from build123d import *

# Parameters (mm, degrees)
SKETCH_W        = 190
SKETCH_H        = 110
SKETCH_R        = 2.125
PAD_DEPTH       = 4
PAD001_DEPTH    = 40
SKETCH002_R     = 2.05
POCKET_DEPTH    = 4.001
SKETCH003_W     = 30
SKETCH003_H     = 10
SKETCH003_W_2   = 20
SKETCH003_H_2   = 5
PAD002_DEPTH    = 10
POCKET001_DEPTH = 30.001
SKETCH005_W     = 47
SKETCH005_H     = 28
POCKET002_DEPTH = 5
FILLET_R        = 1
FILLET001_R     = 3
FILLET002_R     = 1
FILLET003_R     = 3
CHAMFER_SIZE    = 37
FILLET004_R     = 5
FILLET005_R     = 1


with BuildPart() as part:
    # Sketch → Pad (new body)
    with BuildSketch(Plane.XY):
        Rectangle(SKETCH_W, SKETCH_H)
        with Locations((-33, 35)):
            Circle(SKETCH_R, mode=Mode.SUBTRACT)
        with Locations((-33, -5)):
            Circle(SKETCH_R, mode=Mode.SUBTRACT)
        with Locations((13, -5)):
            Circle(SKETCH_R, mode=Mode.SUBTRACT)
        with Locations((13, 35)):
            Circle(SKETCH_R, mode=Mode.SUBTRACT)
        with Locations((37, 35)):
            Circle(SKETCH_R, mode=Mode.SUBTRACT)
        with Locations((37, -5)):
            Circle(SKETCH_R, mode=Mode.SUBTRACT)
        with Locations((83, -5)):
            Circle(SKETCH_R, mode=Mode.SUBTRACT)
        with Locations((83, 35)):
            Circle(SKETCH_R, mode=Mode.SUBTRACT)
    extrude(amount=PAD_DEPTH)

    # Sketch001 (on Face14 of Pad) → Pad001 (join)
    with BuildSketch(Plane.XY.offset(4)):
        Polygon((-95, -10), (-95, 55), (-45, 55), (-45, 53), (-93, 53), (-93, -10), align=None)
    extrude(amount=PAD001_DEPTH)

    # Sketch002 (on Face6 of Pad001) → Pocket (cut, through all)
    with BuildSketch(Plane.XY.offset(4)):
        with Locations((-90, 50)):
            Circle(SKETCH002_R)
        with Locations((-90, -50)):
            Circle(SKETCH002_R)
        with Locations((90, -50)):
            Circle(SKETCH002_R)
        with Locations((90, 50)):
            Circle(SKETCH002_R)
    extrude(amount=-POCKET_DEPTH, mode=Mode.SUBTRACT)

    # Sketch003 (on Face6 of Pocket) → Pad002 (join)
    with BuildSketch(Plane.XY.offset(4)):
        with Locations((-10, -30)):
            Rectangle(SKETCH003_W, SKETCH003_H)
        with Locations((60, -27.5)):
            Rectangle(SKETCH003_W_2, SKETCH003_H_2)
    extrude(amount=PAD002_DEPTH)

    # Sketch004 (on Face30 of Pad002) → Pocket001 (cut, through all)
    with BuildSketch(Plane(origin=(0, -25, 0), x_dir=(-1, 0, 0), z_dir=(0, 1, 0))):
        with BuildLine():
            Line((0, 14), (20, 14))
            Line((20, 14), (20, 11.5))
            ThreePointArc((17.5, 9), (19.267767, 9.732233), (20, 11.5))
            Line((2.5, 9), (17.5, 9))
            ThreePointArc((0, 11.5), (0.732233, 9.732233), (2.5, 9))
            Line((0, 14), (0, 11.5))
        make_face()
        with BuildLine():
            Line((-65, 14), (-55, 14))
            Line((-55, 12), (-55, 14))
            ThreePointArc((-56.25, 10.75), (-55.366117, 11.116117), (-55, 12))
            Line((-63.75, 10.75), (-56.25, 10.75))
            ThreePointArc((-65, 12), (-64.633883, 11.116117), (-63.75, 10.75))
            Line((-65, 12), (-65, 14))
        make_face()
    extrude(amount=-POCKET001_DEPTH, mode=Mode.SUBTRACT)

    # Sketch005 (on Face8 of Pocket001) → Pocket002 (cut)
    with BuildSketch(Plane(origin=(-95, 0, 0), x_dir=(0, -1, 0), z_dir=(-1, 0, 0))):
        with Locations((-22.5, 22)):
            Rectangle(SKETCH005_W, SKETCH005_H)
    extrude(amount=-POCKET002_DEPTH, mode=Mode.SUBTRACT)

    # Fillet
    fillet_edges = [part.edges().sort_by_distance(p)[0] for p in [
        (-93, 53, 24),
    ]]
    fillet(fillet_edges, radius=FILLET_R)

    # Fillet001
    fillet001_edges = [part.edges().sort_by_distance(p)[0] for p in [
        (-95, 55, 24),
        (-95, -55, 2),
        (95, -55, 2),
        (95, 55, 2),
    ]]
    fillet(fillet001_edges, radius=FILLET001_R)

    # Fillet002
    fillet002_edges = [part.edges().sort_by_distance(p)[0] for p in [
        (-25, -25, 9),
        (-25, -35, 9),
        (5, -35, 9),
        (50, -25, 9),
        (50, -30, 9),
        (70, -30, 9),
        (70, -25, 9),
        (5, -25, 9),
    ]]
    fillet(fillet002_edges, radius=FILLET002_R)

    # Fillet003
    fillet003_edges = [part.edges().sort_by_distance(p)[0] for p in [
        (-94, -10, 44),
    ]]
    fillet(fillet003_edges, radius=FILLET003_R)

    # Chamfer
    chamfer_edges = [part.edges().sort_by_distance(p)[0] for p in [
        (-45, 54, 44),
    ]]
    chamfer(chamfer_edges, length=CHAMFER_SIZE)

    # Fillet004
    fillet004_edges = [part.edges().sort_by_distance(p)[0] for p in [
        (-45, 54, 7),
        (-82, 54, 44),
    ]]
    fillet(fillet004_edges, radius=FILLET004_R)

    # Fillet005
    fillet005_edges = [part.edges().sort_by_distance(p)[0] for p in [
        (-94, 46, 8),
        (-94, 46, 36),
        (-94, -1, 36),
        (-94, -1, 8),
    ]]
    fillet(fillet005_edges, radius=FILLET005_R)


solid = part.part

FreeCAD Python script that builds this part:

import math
import FreeCAD as App
import Part
import Sketcher
Q = App.Units.Quantity


def edges_at(feature, points):
    """Names of the edges that pass closest to the given points."""
    edges = feature.Shape.Edges
    near = lambda p: min(range(len(edges)), key=lambda i: edges[i].distToShape(Part.Vertex(*p))[0])
    return sorted({f"Edge{near(p) + 1}" for p in points})


def add_polygon(sketch, points):
    """Adds a closed chain of lines whose ends are joined by coincident constraints."""
    first, n = sketch.GeometryCount, len(points)
    for a, b in zip(points, points[1:] + points[:1]):
        sketch.addGeometry(Part.LineSegment(App.Vector(*a, 0), App.Vector(*b, 0)), False)
    for i in range(n):
        sketch.addConstraint(Sketcher.Constraint("Coincident", first + i, 2, first + (i + 1) % n, 1))

doc = App.newDocument("Part")
body = doc.addObject("PartDesign::Body", "Body")

sketch1 = body.newObject("Sketcher::SketchObject", "Sketch")
sketch1.AttachmentSupport = (doc.getObject("XY_Plane"), [""])
sketch1.MapMode = "FlatFace"
add_polygon(sketch1, [(-95, 55), (-95, -55), (95, -55), (95, 55)])
sketch1.addGeometry(Part.Circle(App.Vector(-33, -5, 0), App.Vector(0, 0, 1), 2.1), False)
sketch1.addGeometry(Part.Circle(App.Vector(13, -5, 0), App.Vector(0, 0, 1), 2.1), False)
sketch1.addGeometry(Part.Circle(App.Vector(37, -5, 0), App.Vector(0, 0, 1), 2.1), False)
sketch1.addGeometry(Part.Circle(App.Vector(83, -5, 0), App.Vector(0, 0, 1), 2.1), False)
sketch1.addGeometry(Part.Circle(App.Vector(-33, 35, 0), App.Vector(0, 0, 1), 2.1), False)
sketch1.addGeometry(Part.Circle(App.Vector(13, 35, 0), App.Vector(0, 0, 1), 2.1), False)
sketch1.addGeometry(Part.Circle(App.Vector(37, 35, 0), App.Vector(0, 0, 1), 2.1), False)
sketch1.addGeometry(Part.Circle(App.Vector(83, 35, 0), App.Vector(0, 0, 1), 2.1), False)
sketch1.addConstraint([
    Sketcher.Constraint("Vertical", 0),
    Sketcher.Constraint("Horizontal", 1),
    Sketcher.Constraint("Vertical", 2),
    Sketcher.Constraint("Horizontal", 3),
    Sketcher.Constraint("Equal", 4, 5),
    Sketcher.Constraint("Equal", 5, 6),
    Sketcher.Constraint("Equal", 6, 7),
    Sketcher.Constraint("Equal", 7, 8),
    Sketcher.Constraint("Equal", 8, 9),
    Sketcher.Constraint("Equal", 9, 10),
    Sketcher.Constraint("Equal", 10, 11),
    Sketcher.Constraint("Symmetric", 0, 2, 2, 2, -1, 1),
    Sketcher.Constraint("Horizontal", 4, 3, 5, 3),
    Sketcher.Constraint("Horizontal", 5, 3, 6, 3),
    Sketcher.Constraint("Horizontal", 6, 3, 7, 3),
    Sketcher.Constraint("Horizontal", 8, 3, 9, 3),
    Sketcher.Constraint("Horizontal", 9, 3, 10, 3),
    Sketcher.Constraint("Horizontal", 10, 3, 11, 3),
    Sketcher.Constraint("Vertical", 4, 3, 8, 3),
    Sketcher.Constraint("Vertical", 5, 3, 9, 3),
    Sketcher.Constraint("Vertical", 6, 3, 10, 3),
    Sketcher.Constraint("Vertical", 7, 3, 11, 3),
    Sketcher.Constraint("Diameter", 4, Q("4.25 mm")),
    Sketcher.Constraint("DistanceX", 1, 1, 1, 2, Q("190 mm")),
    Sketcher.Constraint("DistanceY", 0, 2, 0, 1, Q("110 mm")),
    Sketcher.Constraint("DistanceX", 4, 3, -1, 1, Q("33 mm")),
    Sketcher.Constraint("DistanceY", 4, 3, -1, 1, Q("5 mm")),
    Sketcher.Constraint("DistanceX", -1, 1, 5, 3, Q("13 mm")),
    Sketcher.Constraint("DistanceX", -1, 1, 6, 3, Q("37 mm")),
    Sketcher.Constraint("DistanceX", -1, 1, 7, 3, Q("83 mm")),
    Sketcher.Constraint("DistanceY", -1, 1, 8, 3, Q("35 mm")),
])
pad1 = body.newObject("PartDesign::Pad", "Pad")
pad1.Profile = sketch1
pad1.Length = 4

sketch2 = body.newObject("Sketcher::SketchObject", "Sketch001")
sketch2.AttachmentSupport = (doc.getObject("XY_Plane"), [""])
sketch2.MapMode = "FlatFace"
sketch2.AttachmentOffset = App.Placement(App.Vector(0, 0, 4), App.Rotation())
add_polygon(sketch2, [(-95, 55), (-95, -10), (-93, -10), (-93, 53), (-45, 53), (-45, 55)])
sketch2.addConstraint([
    Sketcher.Constraint("Vertical", 0),
    Sketcher.Constraint("Horizontal", 1),
    Sketcher.Constraint("Vertical", 2),
    Sketcher.Constraint("Horizontal", 3),
    Sketcher.Constraint("Vertical", 4),
    Sketcher.Constraint("Horizontal", 5),
    Sketcher.Constraint("Equal", 1, 4),
    Sketcher.Constraint("DistanceX", 1, 1, 1, 2, Q("2 mm")),
    Sketcher.Constraint("DistanceX", 3, 1, 3, 2, Q("48 mm")),
    Sketcher.Constraint("DistanceY", 0, 2, 0, 1, Q("65 mm")),
    Sketcher.Constraint("DistanceX", 0, 2, -1, 1, Q("95 mm")),
    Sketcher.Constraint("DistanceY", 0, 2, -1, 1, Q("10 mm")),
])
pad2 = body.newObject("PartDesign::Pad", "Pad001")
pad2.Profile = sketch2
pad2.Length = 40

sketch3 = body.newObject("Sketcher::SketchObject", "Sketch002")
sketch3.AttachmentSupport = (doc.getObject("XY_Plane"), [""])
sketch3.MapMode = "FlatFace"
sketch3.AttachmentOffset = App.Placement(App.Vector(0, 0, 4), App.Rotation())
sketch3.addGeometry([
    Part.Circle(App.Vector(-90, 50, 0), App.Vector(0, 0, 1), 2),
    Part.Circle(App.Vector(-90, -50, 0), App.Vector(0, 0, 1), 2),
    Part.Circle(App.Vector(90, -50, 0), App.Vector(0, 0, 1), 2),
    Part.Circle(App.Vector(90, 50, 0), App.Vector(0, 0, 1), 2),
], False)
sketch3.addConstraint([
    Sketcher.Constraint("Equal", 0, 1),
    Sketcher.Constraint("Equal", 1, 2),
    Sketcher.Constraint("Equal", 2, 3),
    Sketcher.Constraint("Symmetric", 0, 3, 2, 3, -1, 1),
    Sketcher.Constraint("Symmetric", 1, 3, 3, 3, -1, 1),
    Sketcher.Constraint("Symmetric", 1, 3, 2, 3, -2),
    Sketcher.Constraint("Diameter", 0, Q("4.1 mm")),
    Sketcher.Constraint("DistanceX", 0, 3, -1, 1, Q("90 mm")),
    Sketcher.Constraint("DistanceY", -1, 1, 0, 3, Q("50 mm")),
])
pocket1 = body.newObject("PartDesign::Pocket", "Pocket")
pocket1.Profile = sketch3
pocket1.Type = "ThroughAll"

sketch4 = body.newObject("Sketcher::SketchObject", "Sketch003")
sketch4.AttachmentSupport = (doc.getObject("XY_Plane"), [""])
sketch4.MapMode = "FlatFace"
sketch4.AttachmentOffset = App.Placement(App.Vector(0, 0, 4), App.Rotation())
add_polygon(sketch4, [(-25, -25), (-25, -35), (5, -35), (5, -25)])
add_polygon(sketch4, [(50, -25), (50, -30), (70, -30), (70, -25)])
sketch4.addConstraint([
    Sketcher.Constraint("Vertical", 0),
    Sketcher.Constraint("Horizontal", 1),
    Sketcher.Constraint("Vertical", 2),
    Sketcher.Constraint("Horizontal", 3),
    Sketcher.Constraint("Vertical", 4),
    Sketcher.Constraint("Horizontal", 5),
    Sketcher.Constraint("Vertical", 6),
    Sketcher.Constraint("Horizontal", 7),
    Sketcher.Constraint("Horizontal", 3, 2, 6, 2),
    Sketcher.Constraint("DistanceX", 1, 1, 1, 2, Q("30 mm")),
    Sketcher.Constraint("DistanceX", 5, 1, 5, 2, Q("20 mm")),
    Sketcher.Constraint("DistanceY", 0, 2, 0, 1, Q("10 mm")),
    Sketcher.Constraint("DistanceY", 4, 2, 4, 1, Q("5 mm")),
    Sketcher.Constraint("DistanceX", 0, 2, -1, 1, Q("25 mm")),
    Sketcher.Constraint("DistanceY", 0, 2, -1, 1, Q("35 mm")),
    Sketcher.Constraint("DistanceX", -1, 1, 4, 2, Q("50 mm")),
])
pad3 = body.newObject("PartDesign::Pad", "Pad002")
pad3.Profile = sketch4
pad3.Length = 10

sketch5 = body.newObject("Sketcher::SketchObject", "Sketch004")
sketch5.AttachmentSupport = (doc.getObject("XZ_Plane"), [""])
sketch5.MapMode = "FlatFace"
sketch5.AttachmentOffset = App.Placement(App.Vector(0, 0, 25), App.Rotation())
sketch5.addGeometry([
    Part.LineSegment(App.Vector(-20, 14, 0), App.Vector(0, 14, 0)),
    Part.LineSegment(App.Vector(0, 14, 0), App.Vector(0, 11.5, 0)),
    Part.ArcOfCircle(Part.Circle(App.Vector(-2.5, 11.5, 0), App.Vector(0, 0, 1), 2.5), math.radians(-90), math.radians(0)),
    Part.LineSegment(App.Vector(-2.5, 9, 0), App.Vector(-17.5, 9, 0)),
    Part.ArcOfCircle(Part.Circle(App.Vector(-17.5, 11.5, 0), App.Vector(0, 0, 1), 2.5), math.radians(180), math.radians(270)),
    Part.LineSegment(App.Vector(-20, 11.5, 0), App.Vector(-20, 14, 0)),
    Part.LineSegment(App.Vector(55, 14, 0), App.Vector(65, 14, 0)),
    Part.LineSegment(App.Vector(65, 14, 0), App.Vector(65, 12, 0)),
    Part.ArcOfCircle(Part.Circle(App.Vector(63.7, 12, 0), App.Vector(0, 0, 1), 1.3), math.radians(-90), math.radians(0)),
    Part.LineSegment(App.Vector(63.8, 10.8, 0), App.Vector(56.2, 10.8, 0)),
    Part.ArcOfCircle(Part.Circle(App.Vector(56.3, 12, 0), App.Vector(0, 0, 1), 1.3), math.radians(-180), math.radians(-90)),
    Part.LineSegment(App.Vector(55, 12, 0), App.Vector(55, 14, 0)),
], False)
sketch5.addConstraint([
    Sketcher.Constraint("Coincident", 0, 2, 1, 1),
    Sketcher.Constraint("Tangent", 1, 2, 2, 2),
    Sketcher.Constraint("Tangent", 2, 1, 3, 1),
    Sketcher.Constraint("Tangent", 3, 2, 4, 2),
    Sketcher.Constraint("Tangent", 4, 1, 5, 1),
    Sketcher.Constraint("Coincident", 5, 2, 0, 1),
    Sketcher.Constraint("Coincident", 6, 2, 7, 1),
    Sketcher.Constraint("Tangent", 7, 2, 8, 2),
    Sketcher.Constraint("Tangent", 8, 1, 9, 1),
    Sketcher.Constraint("Tangent", 9, 2, 10, 2),
    Sketcher.Constraint("Tangent", 10, 1, 11, 1),
    Sketcher.Constraint("Coincident", 11, 2, 6, 1),
    Sketcher.Constraint("Horizontal", 0),
    Sketcher.Constraint("Vertical", 1),
    Sketcher.Constraint("Horizontal", 3),
    Sketcher.Constraint("Vertical", 5),
    Sketcher.Constraint("Horizontal", 6),
    Sketcher.Constraint("Vertical", 7),
    Sketcher.Constraint("Horizontal", 9),
    Sketcher.Constraint("Vertical", 11),
    Sketcher.Constraint("Equal", 2, 4),
    Sketcher.Constraint("Equal", 8, 10),
    Sketcher.Constraint("PointOnObject", 0, 2, -2),
    Sketcher.Constraint("Horizontal", 5, 2, 6, 2),
    Sketcher.Constraint("Radius", 2, Q("2.5 mm")),
    Sketcher.Constraint("DistanceX", 0, 1, 0, 2, Q("20 mm")),
    Sketcher.Constraint("DistanceX", 6, 1, 6, 2, Q("10 mm")),
    Sketcher.Constraint("DistanceY", 7, 2, 7, 1, Q("2 mm")),
    Sketcher.Constraint("Radius", 8, Q("1.250002 mm")),
    Sketcher.Constraint("DistanceY", 1, 2, 1, 1, Q("2.5 mm")),
    Sketcher.Constraint("DistanceY", -1, 1, 8, 3, Q("12.000002 mm")),
    Sketcher.Constraint("DistanceX", -1, 1, 6, 2, Q("65 mm")),
])
pocket2 = body.newObject("PartDesign::Pocket", "Pocket001")
pocket2.Profile = sketch5
pocket2.Type = "ThroughAll"
pocket2.Reversed = True

sketch6 = body.newObject("Sketcher::SketchObject", "Sketch005")
sketch6.AttachmentSupport = (doc.getObject("YZ_Plane"), [""])
sketch6.MapMode = "FlatFace"
sketch6.AttachmentOffset = App.Placement(App.Vector(0, 0, -95), App.Rotation())
add_polygon(sketch6, [(46, 36), (46, 8), (-1, 8), (-1, 36)])
sketch6.addConstraint([
    Sketcher.Constraint("Vertical", 0),
    Sketcher.Constraint("Horizontal", 1),
    Sketcher.Constraint("Vertical", 2),
    Sketcher.Constraint("Horizontal", 3),
    Sketcher.Constraint("DistanceX", 1, 2, 1, 1, Q("47 mm")),
    Sketcher.Constraint("DistanceY", 0, 2, 0, 1, Q("28 mm")),
    Sketcher.Constraint("DistanceX", -1, 1, 0, 2, Q("46 mm")),
    Sketcher.Constraint("DistanceY", -1, 1, 0, 2, Q("8 mm")),
])
pocket3 = body.newObject("PartDesign::Pocket", "Pocket002")
pocket3.Profile = sketch6
pocket3.Length = 5
pocket3.Reversed = True
doc.recompute()

fillet = body.newObject("PartDesign::Fillet", "Fillet")
fillet.Base = (pocket3, edges_at(pocket3, [(-93, 53, 24)]))
fillet.Radius = 1
doc.recompute()

fillet2 = body.newObject("PartDesign::Fillet", "Fillet001")
fillet2.Base = (fillet, edges_at(fillet, [
    (-95, 55, 22),
    (-95, -55, 2),
    (95, -55, 2),
    (95, 55, 2),
]))
fillet2.Radius = 3
doc.recompute()

fillet3 = body.newObject("PartDesign::Fillet", "Fillet002")
fillet3.Base = (fillet2, edges_at(fillet2, [
    (-25, -25, 9),
    (-25, -35, 9),
    (5, -35, 9),
    (50, -25, 9),
    (50, -30, 9),
    (70, -30, 9),
    (70, -25, 9),
    (5, -25, 9),
]))
fillet3.Radius = 1
doc.recompute()

fillet4 = body.newObject("PartDesign::Fillet", "Fillet003")
fillet4.Base = (fillet3, edges_at(fillet3, [(-94, -10, 44)]))
fillet4.Radius = 3
doc.recompute()

chamfer = body.newObject("PartDesign::Chamfer", "Chamfer")
chamfer.Base = (fillet4, edges_at(fillet4, [(-45, 54, 44)]))
chamfer.Size = 37
doc.recompute()

fillet5 = body.newObject("PartDesign::Fillet", "Fillet004")
fillet5.Base = (chamfer, edges_at(chamfer, [(-45, 54, 7), (-82, 54, 44)]))
fillet5.Radius = 5
doc.recompute()

fillet6 = body.newObject("PartDesign::Fillet", "Fillet005")
fillet6.Base = (fillet5, edges_at(fillet5, [
    (-94, 46, 8),
    (-94, 46, 36),
    (-94, -1, 36),
    (-94, -1, 8),
]))
fillet6.Radius = 1

doc.recompute()
